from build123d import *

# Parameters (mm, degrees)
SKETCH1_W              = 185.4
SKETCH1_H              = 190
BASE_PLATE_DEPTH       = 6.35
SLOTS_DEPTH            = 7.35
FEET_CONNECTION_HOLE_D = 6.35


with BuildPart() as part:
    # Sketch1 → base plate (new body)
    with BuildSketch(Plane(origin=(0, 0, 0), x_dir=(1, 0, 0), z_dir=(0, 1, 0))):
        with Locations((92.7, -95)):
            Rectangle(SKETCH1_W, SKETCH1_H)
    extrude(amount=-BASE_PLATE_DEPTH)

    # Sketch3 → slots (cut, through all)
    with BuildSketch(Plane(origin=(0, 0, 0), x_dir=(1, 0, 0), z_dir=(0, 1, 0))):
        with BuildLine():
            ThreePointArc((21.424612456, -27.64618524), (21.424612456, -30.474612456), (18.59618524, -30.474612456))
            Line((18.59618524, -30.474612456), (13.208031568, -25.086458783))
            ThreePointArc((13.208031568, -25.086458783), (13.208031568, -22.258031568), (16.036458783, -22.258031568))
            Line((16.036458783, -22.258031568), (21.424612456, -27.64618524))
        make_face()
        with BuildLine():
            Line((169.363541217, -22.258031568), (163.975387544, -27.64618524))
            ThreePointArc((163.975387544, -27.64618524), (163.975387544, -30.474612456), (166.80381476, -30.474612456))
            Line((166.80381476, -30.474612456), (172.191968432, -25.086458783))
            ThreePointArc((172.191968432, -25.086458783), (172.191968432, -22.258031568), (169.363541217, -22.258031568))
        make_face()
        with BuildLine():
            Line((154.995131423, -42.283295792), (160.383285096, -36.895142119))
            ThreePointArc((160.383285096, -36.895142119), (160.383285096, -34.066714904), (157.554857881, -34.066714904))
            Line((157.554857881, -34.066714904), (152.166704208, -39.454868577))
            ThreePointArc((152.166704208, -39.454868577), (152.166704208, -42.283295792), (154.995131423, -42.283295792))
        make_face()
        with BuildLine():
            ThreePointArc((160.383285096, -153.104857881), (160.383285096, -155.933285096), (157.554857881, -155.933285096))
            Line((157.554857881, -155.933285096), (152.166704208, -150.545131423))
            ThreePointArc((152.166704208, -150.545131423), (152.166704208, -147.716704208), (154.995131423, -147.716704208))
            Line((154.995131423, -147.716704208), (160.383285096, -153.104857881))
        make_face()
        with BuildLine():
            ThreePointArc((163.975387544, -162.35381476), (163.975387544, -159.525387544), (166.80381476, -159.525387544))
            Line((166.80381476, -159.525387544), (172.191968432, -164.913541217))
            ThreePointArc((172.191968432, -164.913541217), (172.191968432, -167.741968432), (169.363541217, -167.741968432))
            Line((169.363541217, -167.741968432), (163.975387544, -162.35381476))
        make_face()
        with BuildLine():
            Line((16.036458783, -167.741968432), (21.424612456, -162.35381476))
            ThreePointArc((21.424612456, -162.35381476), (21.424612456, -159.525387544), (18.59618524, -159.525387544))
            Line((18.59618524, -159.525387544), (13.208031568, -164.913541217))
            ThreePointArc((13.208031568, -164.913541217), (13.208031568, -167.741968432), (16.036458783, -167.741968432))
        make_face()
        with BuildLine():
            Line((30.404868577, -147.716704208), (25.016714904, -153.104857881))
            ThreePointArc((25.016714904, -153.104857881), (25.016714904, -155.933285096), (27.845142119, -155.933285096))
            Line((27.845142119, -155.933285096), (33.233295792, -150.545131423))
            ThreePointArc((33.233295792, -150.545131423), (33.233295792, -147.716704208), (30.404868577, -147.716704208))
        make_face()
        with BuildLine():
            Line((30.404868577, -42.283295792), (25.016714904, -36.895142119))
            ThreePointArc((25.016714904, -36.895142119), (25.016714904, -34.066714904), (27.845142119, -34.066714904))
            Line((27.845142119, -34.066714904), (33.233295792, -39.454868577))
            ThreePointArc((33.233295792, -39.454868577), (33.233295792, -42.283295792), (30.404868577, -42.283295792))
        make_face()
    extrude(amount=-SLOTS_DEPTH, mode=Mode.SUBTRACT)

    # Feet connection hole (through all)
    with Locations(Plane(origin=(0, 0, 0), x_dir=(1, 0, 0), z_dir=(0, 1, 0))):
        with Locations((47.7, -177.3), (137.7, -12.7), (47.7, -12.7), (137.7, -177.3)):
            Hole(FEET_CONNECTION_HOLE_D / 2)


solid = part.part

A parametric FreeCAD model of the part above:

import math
import FreeCAD as App
import Part
import Sketcher

V = App.Vector
Q = App.Units.Quantity


def add_polygon(sketch, points):
    """Adds a closed chain of lines whose ends are joined by coincident constraints."""
    first, n = sketch.GeometryCount, len(points)
    for a, b in zip(points, points[1:] + points[:1]):
        sketch.addGeometry(Part.LineSegment(App.Vector(*a, 0), App.Vector(*b, 0)), False)
    for i in range(n):
        sketch.addConstraint(Sketcher.Constraint("Coincident", first + i, 2, first + (i + 1) % n, 1))

doc = App.newDocument("Part")
body = doc.addObject("PartDesign::Body", "Body")

sketch1 = doc.addObject("Sketcher::SketchObject", "Sketch")
body.addObject(sketch1)
sketch1.AttachmentSupport = (doc.XZ_Plane, [""])
sketch1.MapMode = "FlatFace"
add_polygon(sketch1, [(0, 0), (0, 190), (185, 190), (185, 0)])
sketch1.addConstraint(Sketcher.Constraint("Vertical", 0))
sketch1.addConstraint(Sketcher.Constraint("Horizontal", 1))
sketch1.addConstraint(Sketcher.Constraint("Vertical", 2))
sketch1.addConstraint(Sketcher.Constraint("Horizontal", 3))
sketch1.addConstraint(Sketcher.Constraint("Coincident", 3, 2, -1, 1))
sketch1.addConstraint(Sketcher.Constraint("DistanceY", 0, 1, 0, 2, Q("190 mm")))
sketch1.addConstraint(Sketcher.Constraint("DistanceX", 1, 1, 1, 2, Q("185.4 mm")))
pad1 = doc.addObject("PartDesign::Pad", "Pad")
body.addObject(pad1)
pad1.Profile = sketch1
pad1.Length = 6.35

sketch2 = doc.addObject("Sketcher::SketchObject", "Sketch001")
body.addObject(sketch2)
sketch2.AttachmentSupport = (doc.XZ_Plane, [""])
sketch2.MapMode = "FlatFace"
sketch2.addGeometry(Part.ArcOfCircle(Part.Circle(V(20, 29.1, 0), V(0, 0, 1), 2), math.radians(-45), math.radians(135)), False)
sketch2.addGeometry(Part.LineSegment(V(21.4, 27.6, 0), V(16, 22.3, 0)), False)
sketch2.addGeometry(Part.ArcOfCircle(Part.Circle(V(14.6, 23.7, 0), V(0, 0, 1), 2), math.radians(135), math.radians(315)), False)
sketch2.addGeometry(Part.LineSegment(V(13.2, 25.1, 0), V(18.6, 30.5, 0)), False)
sketch2.addGeometry(Part.LineSegment(V(169.4, 22.3, 0), V(164, 27.6, 0)), False)
sketch2.addGeometry(Part.ArcOfCircle(Part.Circle(V(165.4, 29.1, 0), V(0, 0, 1), 2), math.radians(45), math.radians(225)), False)
sketch2.addGeometry(Part.LineSegment(V(166.8, 30.5, 0), V(172.2, 25.1, 0)), False)
sketch2.addGeometry(Part.ArcOfCircle(Part.Circle(V(170.8, 23.7, 0), V(0, 0, 1), 2), math.radians(-135), math.radians(45)), False)
sketch2.addGeometry(Part.LineSegment(V(155, 42.3, 0), V(160.4, 36.9, 0)), False)
sketch2.addGeometry(Part.ArcOfCircle(Part.Circle(V(159, 35.5, 0), V(0, 0, 1), 2), math.radians(-135), math.radians(45)), False)
sketch2.addGeometry(Part.LineSegment(V(157.6, 34.1, 0), V(152.2, 39.5, 0)), False)
sketch2.addGeometry(Part.ArcOfCircle(Part.Circle(V(153.6, 40.9, 0), V(0, 0, 1), 2), math.radians(45), math.radians(225)), False)
sketch2.addGeometry(Part.ArcOfCircle(Part.Circle(V(159, 154.5, 0), V(0, 0, 1), 2), math.radians(-45), math.radians(135)), False)
sketch2.addGeometry(Part.LineSegment(V(160.4, 153.1, 0), V(155, 147.7, 0)), False)
sketch2.addGeometry(Part.ArcOfCircle(Part.Circle(V(153.6, 149.1, 0), V(0, 0, 1), 2), math.radians(135), math.radians(315)), False)
sketch2.addGeometry(Part.LineSegment(V(152.2, 150.5, 0), V(157.6, 155.9, 0)), False)
sketch2.addGeometry(Part.ArcOfCircle(Part.Circle(V(165.4, 160.9, 0), V(0, 0, 1), 2), math.radians(135), math.radians(315)), False)
sketch2.addGeometry(Part.LineSegment(V(164, 162.4, 0), V(169.4, 167.7, 0)), False)
sketch2.addGeometry(Part.ArcOfCircle(Part.Circle(V(170.8, 166.3, 0), V(0, 0, 1), 2), math.radians(-45), math.radians(135)), False)
sketch2.addGeometry(Part.LineSegment(V(172.2, 164.9, 0), V(166.8, 159.5, 0)), False)
sketch2.addGeometry(Part.LineSegment(V(16, 167.7, 0), V(21.4, 162.4, 0)), False)
sketch2.addGeometry(Part.ArcOfCircle(Part.Circle(V(20, 160.9, 0), V(0, 0, 1), 2), math.radians(-135), math.radians(45)), False)
sketch2.addGeometry(Part.LineSegment(V(18.6, 159.5, 0), V(13.2, 164.9, 0)), False)
sketch2.addGeometry(Part.ArcOfCircle(Part.Circle(V(14.6, 166.3, 0), V(0, 0, 1), 2), math.radians(45), math.radians(225)), False)
sketch2.addGeometry(Part.LineSegment(V(30.4, 147.7, 0), V(25, 153.1, 0)), False)
sketch2.addGeometry(Part.ArcOfCircle(Part.Circle(V(26.4, 154.5, 0), V(0, 0, 1), 2), math.radians(45), math.radians(225)), False)
sketch2.addGeometry(Part.LineSegment(V(27.8, 155.9, 0), V(33.2, 150.5, 0)), False)
sketch2.addGeometry(Part.ArcOfCircle(Part.Circle(V(31.8, 149.1, 0), V(0, 0, 1), 2), math.radians(-135), math.radians(45)), False)
sketch2.addGeometry(Part.LineSegment(V(25, 36.9, 0), V(30.4, 42.3, 0)), False)
sketch2.addGeometry(Part.ArcOfCircle(Part.Circle(V(31.8, 40.9, 0), V(0, 0, 1), 2), math.radians(-45), math.radians(135)), False)
sketch2.addGeometry(Part.LineSegment(V(33.2, 39.5, 0), V(27.8, 34.1, 0)), False)
sketch2.addGeometry(Part.ArcOfCircle(Part.Circle(V(26.4, 35.5, 0), V(0, 0, 1), 2), math.radians(135), math.radians(315)), False)
sketch2.addConstraint(Sketcher.Constraint("Tangent", 0, 1, 1, 1))
sketch2.addConstraint(Sketcher.Constraint("Tangent", 1, 2, 2, 2))
sketch2.addConstraint(Sketcher.Constraint("Tangent", 2, 1, 3, 1))
sketch2.addConstraint(Sketcher.Constraint("Tangent", 3, 2, 0, 2))
sketch2.addConstraint(Sketcher.Constraint("Tangent", 4, 2, 5, 2))
sketch2.addConstraint(Sketcher.Constraint("Tangent", 5, 1, 6, 1))
sketch2.addConstraint(Sketcher.Constraint("Tangent", 6, 2, 7, 2))
sketch2.addConstraint(Sketcher.Constraint("Tangent", 7, 1, 4, 1))
sketch2.addConstraint(Sketcher.Constraint("Tangent", 8, 2, 9, 2))
sketch2.addConstraint(Sketcher.Constraint("Tangent", 9, 1, 10, 1))
sketch2.addConstraint(Sketcher.Constraint("Tangent", 10, 2, 11, 2))
sketch2.addConstraint(Sketcher.Constraint("Tangent", 11, 1, 8, 1))
sketch2.addConstraint(Sketcher.Constraint("Tangent", 12, 1, 13, 1))
sketch2.addConstraint(Sketcher.Constraint("Tangent", 13, 2, 14, 2))
sketch2.addConstraint(Sketcher.Constraint("Tangent", 14, 1, 15, 1))
sketch2.addConstraint(Sketcher.Constraint("Tangent", 15, 2, 12, 2))
sketch2.addConstraint(Sketcher.Constraint("Tangent", 16, 1, 17, 1))
sketch2.addConstraint(Sketcher.Constraint("Tangent", 17, 2, 18, 2))
sketch2.addConstraint(Sketcher.Constraint("Tangent", 18, 1, 19, 1))
sketch2.addConstraint(Sketcher.Constraint("Tangent", 19, 2, 16, 2))
sketch2.addConstraint(Sketcher.Constraint("Tangent", 20, 2, 21, 2))
sketch2.addConstraint(Sketcher.Constraint("Tangent", 21, 1, 22, 1))
sketch2.addConstraint(Sketcher.Constraint("Tangent", 22, 2, 23, 2))
sketch2.addConstraint(Sketcher.Constraint("Tangent", 23, 1, 20, 1))
sketch2.addConstraint(Sketcher.Constraint("Tangent", 24, 2, 25, 2))
sketch2.addConstraint(Sketcher.Constraint("Tangent", 25, 1, 26, 1))
sketch2.addConstraint(Sketcher.Constraint("Tangent", 26, 2, 27, 2))
sketch2.addConstraint(Sketcher.Constraint("Tangent", 27, 1, 24, 1))
sketch2.addConstraint(Sketcher.Constraint("Tangent", 28, 2, 29, 2))
sketch2.addConstraint(Sketcher.Constraint("Tangent", 29, 1, 30, 1))
sketch2.addConstraint(Sketcher.Constraint("Tangent", 30, 2, 31, 2))
sketch2.addConstraint(Sketcher.Constraint("Tangent", 31, 1, 28, 1))
sketch2.addConstraint(Sketcher.Constraint("Equal", 0, 2))
sketch2.addConstraint(Sketcher.Constraint("Equal", 2, 5))
sketch2.addConstraint(Sketcher.Constraint("Equal", 5, 7))
sketch2.addConstraint(Sketcher.Constraint("Equal", 7, 9))
sketch2.addConstraint(Sketcher.Constraint("Equal", 9, 11))
sketch2.addConstraint(Sketcher.Constraint("Equal", 11, 12))
sketch2.addConstraint(Sketcher.Constraint("Equal", 12, 14))
sketch2.addConstraint(Sketcher.Constraint("Equal", 14, 16))
sketch2.addConstraint(Sketcher.Constraint("Equal", 16, 18))
sketch2.addConstraint(Sketcher.Constraint("Equal", 18, 21))
sketch2.addConstraint(Sketcher.Constraint("Equal", 21, 23))
sketch2.addConstraint(Sketcher.Constraint("Equal", 23, 25))
sketch2.addConstraint(Sketcher.Constraint("Equal", 25, 27))
sketch2.addConstraint(Sketcher.Constraint("Equal", 27, 29))
sketch2.addConstraint(Sketcher.Constraint("Equal", 29, 31))
sketch2.addConstraint(Sketcher.Constraint("Perpendicular", 3, 4))
sketch2.addConstraint(Sketcher.Constraint("Parallel", 6, 8))
sketch2.addConstraint(Sketcher.Constraint("Perpendicular", 10, 13))
sketch2.addConstraint(Sketcher.Constraint("Parallel", 15, 17))
sketch2.addConstraint(Sketcher.Constraint("Perpendicular", 19, 20))
sketch2.addConstraint(Sketcher.Constraint("Parallel", 22, 24))
sketch2.addConstraint(Sketcher.Constraint("Perpendicular", 26, 28))
sketch2.addConstraint(Sketcher.Constraint("Horizontal", 0, 3, 5, 3))
sketch2.addConstraint(Sketcher.Constraint("Horizontal", 2, 3, 7, 3))
sketch2.addConstraint(Sketcher.Constraint("Horizontal", 16, 3, 21, 3))
sketch2.addConstraint(Sketcher.Constraint("Horizontal", 18, 3, 23, 3))
sketch2.addConstraint(Sketcher.Constraint("Horizontal", 12, 3, 25, 3))
sketch2.addConstraint(Sketcher.Constraint("Horizontal", 14, 3, 27, 3))
sketch2.addConstraint(Sketcher.Constraint("Horizontal", 11, 3, 29, 3))
sketch2.addConstraint(Sketcher.Constraint("Horizontal", 9, 3, 31, 3))
sketch2.addConstraint(Sketcher.Constraint("Horizontal", 0, 1, 4, 2))
sketch2.addConstraint(Sketcher.Constraint("Vertical", 9, 3, 12, 3))
sketch2.addConstraint(Sketcher.Constraint("Vertical", 11, 3, 14, 3))
sketch2.addConstraint(Sketcher.Constraint("Vertical", 5, 3, 16, 3))
sketch2.addConstraint(Sketcher.Constraint("Vertical", 7, 3, 18, 3))
sketch2.addConstraint(Sketcher.Constraint("Vertical", 0, 3, 21, 3))
sketch2.addConstraint(Sketcher.Constraint("Vertical", 27, 3, 29, 3))
sketch2.addConstraint(Sketcher.Constraint("Equal", 6, 8))
sketch2.addConstraint(Sketcher.Constraint("Radius", 0, Q("2 mm")))
sketch2.addConstraint(Sketcher.Constraint("Distance", 1, Q("7.62 mm")))
sketch2.addConstraint(Sketcher.Constraint("DistanceX", -1, 1, 0, 3, Q("20.010399 mm")))
sketch2.addConstraint(Sketcher.Constraint("DistanceY", -1, 1, 0, 3, Q("29.060399 mm")))
sketch2.addConstraint(Sketcher.Constraint("DistanceX", -1, 1, 5, 3, Q("165.389601 mm")))
sketch2.addConstraint(Sketcher.Constraint("DistanceY", -1, 1, 16, 3, Q("160.939601 mm")))
sketch2.addConstraint(Sketcher.Constraint("DistanceX", -1, 1, 9, 3, Q("158.969071 mm")))
sketch2.addConstraint(Sketcher.Constraint("DistanceY", -1, 1, 9, 3, Q("35.480929 mm")))
sketch2.addConstraint(Sketcher.Constraint("DistanceY", -1, 1, 12, 3, Q("154.519071 mm")))
sketch2.addConstraint(Sketcher.Constraint("DistanceX", -1, 1, 25, 3, Q("26.430929 mm")))
pocket1 = doc.addObject("PartDesign::Pocket", "Pocket")
body.addObject(pocket1)
pocket1.Profile = sketch2
pocket1.Type = "ThroughAll"
pocket1.Reversed = True

sketch3 = doc.addObject("Sketcher::SketchObject", "Sketch002")
body.addObject(sketch3)
sketch3.AttachmentSupport = (doc.XZ_Plane, [""])
sketch3.MapMode = "FlatFace"
sketch3.addGeometry(Part.Circle(V(47.7, 177.3, 0), V(0, 0, 1), 3.2), False)
sketch3.addGeometry(Part.Circle(V(137.7, 12.7, 0), V(0, 0, 1), 3.2), False)
sketch3.addGeometry(Part.Circle(V(47.7, 12.7, 0), V(0, 0, 1), 3.2), False)
sketch3.addGeometry(Part.Circle(V(137.7, 177.3, 0), V(0, 0, 1), 3.2), False)
sketch3.addConstraint(Sketcher.Constraint("Equal", 0, 1))
sketch3.addConstraint(Sketcher.Constraint("Equal", 1, 2))
sketch3.addConstraint(Sketcher.Constraint("Equal", 2, 3))
sketch3.addConstraint(Sketcher.Constraint("Horizontal", 1, 3, 2, 3))
sketch3.addConstraint(Sketcher.Constraint("Horizontal", 0, 3, 3, 3))
sketch3.addConstraint(Sketcher.Constraint("Vertical", 0, 3, 2, 3))
sketch3.addConstraint(Sketcher.Constraint("Vertical", 1, 3, 3, 3))
sketch3.addConstraint(Sketcher.Constraint("Diameter", 0, Q("6.35 mm")))
sketch3.addConstraint(Sketcher.Constraint("DistanceX", 0, 3, 1, 3, Q("90 mm")))
sketch3.addConstraint(Sketcher.Constraint("DistanceX", -1, 1, 0, 3, Q("47.7 mm")))
sketch3.addConstraint(Sketcher.Constraint("DistanceY", -1, 1, 0, 3, Q("177.3 mm")))
sketch3.addConstraint(Sketcher.Constraint("DistanceY", -1, 1, 1, 3, Q("12.7 mm")))
doc.recompute()
hole = doc.addObject("PartDesign::Hole", "Hole")
body.addObject(hole)
hole.Profile = sketch3
hole.ThreadType = "None"
hole.Diameter = 6.35
hole.DepthType = "ThroughAll"
hole.Reversed = True

doc.recompute()
